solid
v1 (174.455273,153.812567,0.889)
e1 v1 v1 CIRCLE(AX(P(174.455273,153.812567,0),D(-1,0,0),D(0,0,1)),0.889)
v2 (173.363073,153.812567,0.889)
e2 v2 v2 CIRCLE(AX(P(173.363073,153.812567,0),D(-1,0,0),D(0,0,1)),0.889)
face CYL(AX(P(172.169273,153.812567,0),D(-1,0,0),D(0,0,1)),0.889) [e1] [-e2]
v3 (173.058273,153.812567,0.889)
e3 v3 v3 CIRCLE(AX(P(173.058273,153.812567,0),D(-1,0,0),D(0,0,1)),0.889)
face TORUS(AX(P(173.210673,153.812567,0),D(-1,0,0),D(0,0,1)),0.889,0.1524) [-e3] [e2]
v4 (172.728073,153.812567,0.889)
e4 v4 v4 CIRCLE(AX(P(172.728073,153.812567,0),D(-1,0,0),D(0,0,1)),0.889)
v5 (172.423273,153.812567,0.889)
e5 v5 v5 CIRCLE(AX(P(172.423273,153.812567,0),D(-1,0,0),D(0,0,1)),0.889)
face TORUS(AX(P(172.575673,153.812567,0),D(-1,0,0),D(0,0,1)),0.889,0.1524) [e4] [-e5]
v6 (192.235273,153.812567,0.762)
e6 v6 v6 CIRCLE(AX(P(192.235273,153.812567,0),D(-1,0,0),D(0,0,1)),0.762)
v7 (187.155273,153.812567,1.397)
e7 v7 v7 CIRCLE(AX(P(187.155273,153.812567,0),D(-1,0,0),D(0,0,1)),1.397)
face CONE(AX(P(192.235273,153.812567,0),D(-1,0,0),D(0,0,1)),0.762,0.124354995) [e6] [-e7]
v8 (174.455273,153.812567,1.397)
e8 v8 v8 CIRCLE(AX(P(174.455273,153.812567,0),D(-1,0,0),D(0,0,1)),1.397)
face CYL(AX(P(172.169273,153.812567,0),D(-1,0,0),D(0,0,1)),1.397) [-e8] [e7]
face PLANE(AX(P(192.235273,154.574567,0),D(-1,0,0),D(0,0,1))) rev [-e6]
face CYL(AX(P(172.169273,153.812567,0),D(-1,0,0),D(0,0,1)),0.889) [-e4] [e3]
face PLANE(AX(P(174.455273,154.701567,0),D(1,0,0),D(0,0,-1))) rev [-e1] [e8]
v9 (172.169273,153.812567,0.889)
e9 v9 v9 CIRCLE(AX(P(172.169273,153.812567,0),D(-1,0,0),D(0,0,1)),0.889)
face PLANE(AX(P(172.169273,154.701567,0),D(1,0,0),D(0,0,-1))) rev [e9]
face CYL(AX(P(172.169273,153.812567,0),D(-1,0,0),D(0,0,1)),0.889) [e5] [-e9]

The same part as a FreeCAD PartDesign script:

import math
import FreeCAD as App
import Part
import Sketcher
from FreeCAD import Vector
Q = App.Units.Quantity

doc = App.newDocument("Part")
body = doc.addObject("PartDesign::Body", "Body")

sketch1 = body.newObject("Sketcher::SketchObject", "Sketch")
sketch1.AttachmentSupport = (doc.getObject("XY_Plane"), [""])
sketch1.MapMode = "FlatFace"
sketch1.addGeometry(Part.LineSegment(Vector(172.17, 153.81, 0), Vector(192.24, 153.81, 0)), False)
sketch1.addGeometry(Part.LineSegment(Vector(192.24, 153.81, 0), Vector(192.24, 154.57, 0)), False)
sketch1.addGeometry(Part.LineSegment(Vector(192.24, 154.57, 0), Vector(187.16, 155.21, 0)), False)
sketch1.addGeometry(Part.LineSegment(Vector(187.16, 155.21, 0), Vector(174.46, 155.21, 0)), False)
sketch1.addGeometry(Part.LineSegment(Vector(174.46, 155.21, 0), Vector(174.46, 154.7, 0)), False)
sketch1.addGeometry(Part.LineSegment(Vector(174.46, 154.7, 0), Vector(173.36, 154.7, 0)), False)
sketch1.addGeometry(Part.ArcOfCircle(Part.Circle(Vector(173.21, 154.7, 0), Vector(0, 0, 1), 0.15), math.radians(0), math.radians(180)), False)
sketch1.addGeometry(Part.LineSegment(Vector(173.06, 154.7, 0), Vector(172.73, 154.7, 0)), False)
sketch1.addGeometry(Part.ArcOfCircle(Part.Circle(Vector(172.58, 154.7, 0), Vector(0, 0, 1), 0.15), math.radians(0), math.radians(180)), False)
sketch1.addGeometry(Part.LineSegment(Vector(172.42, 154.7, 0), Vector(172.17, 154.7, 0)), False)
sketch1.addGeometry(Part.LineSegment(Vector(172.17, 154.7, 0), Vector(172.17, 153.81, 0)), False)
sketch1.addGeometry(Part.LineSegment(Vector(172.17, 153.81, 0), Vector(192.24, 153.81, 0)), True)
sketch1.addConstraint(Sketcher.Constraint("Coincident", 0, 2, 1, 1))
sketch1.addConstraint(Sketcher.Constraint("Coincident", 1, 2, 2, 1))
sketch1.addConstraint(Sketcher.Constraint("Coincident", 2, 2, 3, 1))
sketch1.addConstraint(Sketcher.Constraint("Coincident", 3, 2, 4, 1))
sketch1.addConstraint(Sketcher.Constraint("Coincident", 4, 2, 5, 1))
sketch1.addConstraint(Sketcher.Constraint("Coincident", 5, 2, 6, 1))
sketch1.addConstraint(Sketcher.Constraint("Coincident", 6, 2, 7, 1))
sketch1.addConstraint(Sketcher.Constraint("Coincident", 7, 2, 8, 1))
sketch1.addConstraint(Sketcher.Constraint("Coincident", 8, 2, 9, 1))
sketch1.addConstraint(Sketcher.Constraint("Coincident", 9, 2, 10, 1))
sketch1.addConstraint(Sketcher.Constraint("Coincident", 10, 2, 0, 1))
sketch1.addConstraint(Sketcher.Constraint("Horizontal", 0))
sketch1.addConstraint(Sketcher.Constraint("Vertical", 1))
sketch1.addConstraint(Sketcher.Constraint("Horizontal", 3))
sketch1.addConstraint(Sketcher.Constraint("Vertical", 4))
sketch1.addConstraint(Sketcher.Constraint("Horizontal", 5))
sketch1.addConstraint(Sketcher.Constraint("Horizontal", 7))
sketch1.addConstraint(Sketcher.Constraint("Horizontal", 9))
sketch1.addConstraint(Sketcher.Constraint("Vertical", 10))
sketch1.addConstraint(Sketcher.Constraint("Horizontal", 11))
sketch1.addConstraint(Sketcher.Constraint("Coincident", 11, 1, 10, 2))
sketch1.addConstraint(Sketcher.Constraint("Equal", 6, 8))
sketch1.addConstraint(Sketcher.Constraint("Horizontal", 6, 3, 8, 3))
sketch1.addConstraint(Sketcher.Constraint("Horizontal", 8, 3, 4, 2))
sketch1.addConstraint(Sketcher.Constraint("Horizontal", 5, 2, 6, 2))
sketch1.addConstraint(Sketcher.Constraint("Horizontal", 7, 2, 8, 2))
sketch1.addConstraint(Sketcher.Constraint("Vertical", 1, 2, 11, 2))
sketch1.addConstraint(Sketcher.Constraint("DistanceX", 3, 2, 3, 1, Q("0.5 in")))
sketch1.addConstraint(Sketcher.Constraint("Radius", 6, Q("0.006 in")))
sketch1.addConstraint(Sketcher.Constraint("DistanceX", 0, 1, 0, 2, Q("0.79 in")))
sketch1.addConstraint(Sketcher.Constraint("DistanceX", 9, 2, 9, 1, Q("0.01 in")))
sketch1.addConstraint(Sketcher.Constraint("DistanceY", 1, 1, 1, 2, Q("0.03 in")))
sketch1.addConstraint(Sketcher.Constraint("DistanceY", 4, 2, 4, 1, Q("0.02 in")))
sketch1.addConstraint(Sketcher.Constraint("DistanceX", 2, 2, 1, 2, Q("0.2 in")))
sketch1.addConstraint(Sketcher.Constraint("DistanceX", 5, 2, 5, 1, Q("0.043 in")))
sketch1.addConstraint(Sketcher.Constraint("DistanceY", 10, 2, 10, 1, Q("0.035 in")))
sketch1.addConstraint(Sketcher.Constraint("DistanceX", -1, 1, 6, 3, 173.210673))
sketch1.addConstraint(Sketcher.Constraint("DistanceY", -1, 1, 6, 3, 154.701567))
revolution = body.newObject("PartDesign::Revolution", "Revolution")
revolution.Profile = sketch1
revolution.ReferenceAxis = (sketch1, ["Axis0"])
revolution.Angle = 360

doc.recompute()
